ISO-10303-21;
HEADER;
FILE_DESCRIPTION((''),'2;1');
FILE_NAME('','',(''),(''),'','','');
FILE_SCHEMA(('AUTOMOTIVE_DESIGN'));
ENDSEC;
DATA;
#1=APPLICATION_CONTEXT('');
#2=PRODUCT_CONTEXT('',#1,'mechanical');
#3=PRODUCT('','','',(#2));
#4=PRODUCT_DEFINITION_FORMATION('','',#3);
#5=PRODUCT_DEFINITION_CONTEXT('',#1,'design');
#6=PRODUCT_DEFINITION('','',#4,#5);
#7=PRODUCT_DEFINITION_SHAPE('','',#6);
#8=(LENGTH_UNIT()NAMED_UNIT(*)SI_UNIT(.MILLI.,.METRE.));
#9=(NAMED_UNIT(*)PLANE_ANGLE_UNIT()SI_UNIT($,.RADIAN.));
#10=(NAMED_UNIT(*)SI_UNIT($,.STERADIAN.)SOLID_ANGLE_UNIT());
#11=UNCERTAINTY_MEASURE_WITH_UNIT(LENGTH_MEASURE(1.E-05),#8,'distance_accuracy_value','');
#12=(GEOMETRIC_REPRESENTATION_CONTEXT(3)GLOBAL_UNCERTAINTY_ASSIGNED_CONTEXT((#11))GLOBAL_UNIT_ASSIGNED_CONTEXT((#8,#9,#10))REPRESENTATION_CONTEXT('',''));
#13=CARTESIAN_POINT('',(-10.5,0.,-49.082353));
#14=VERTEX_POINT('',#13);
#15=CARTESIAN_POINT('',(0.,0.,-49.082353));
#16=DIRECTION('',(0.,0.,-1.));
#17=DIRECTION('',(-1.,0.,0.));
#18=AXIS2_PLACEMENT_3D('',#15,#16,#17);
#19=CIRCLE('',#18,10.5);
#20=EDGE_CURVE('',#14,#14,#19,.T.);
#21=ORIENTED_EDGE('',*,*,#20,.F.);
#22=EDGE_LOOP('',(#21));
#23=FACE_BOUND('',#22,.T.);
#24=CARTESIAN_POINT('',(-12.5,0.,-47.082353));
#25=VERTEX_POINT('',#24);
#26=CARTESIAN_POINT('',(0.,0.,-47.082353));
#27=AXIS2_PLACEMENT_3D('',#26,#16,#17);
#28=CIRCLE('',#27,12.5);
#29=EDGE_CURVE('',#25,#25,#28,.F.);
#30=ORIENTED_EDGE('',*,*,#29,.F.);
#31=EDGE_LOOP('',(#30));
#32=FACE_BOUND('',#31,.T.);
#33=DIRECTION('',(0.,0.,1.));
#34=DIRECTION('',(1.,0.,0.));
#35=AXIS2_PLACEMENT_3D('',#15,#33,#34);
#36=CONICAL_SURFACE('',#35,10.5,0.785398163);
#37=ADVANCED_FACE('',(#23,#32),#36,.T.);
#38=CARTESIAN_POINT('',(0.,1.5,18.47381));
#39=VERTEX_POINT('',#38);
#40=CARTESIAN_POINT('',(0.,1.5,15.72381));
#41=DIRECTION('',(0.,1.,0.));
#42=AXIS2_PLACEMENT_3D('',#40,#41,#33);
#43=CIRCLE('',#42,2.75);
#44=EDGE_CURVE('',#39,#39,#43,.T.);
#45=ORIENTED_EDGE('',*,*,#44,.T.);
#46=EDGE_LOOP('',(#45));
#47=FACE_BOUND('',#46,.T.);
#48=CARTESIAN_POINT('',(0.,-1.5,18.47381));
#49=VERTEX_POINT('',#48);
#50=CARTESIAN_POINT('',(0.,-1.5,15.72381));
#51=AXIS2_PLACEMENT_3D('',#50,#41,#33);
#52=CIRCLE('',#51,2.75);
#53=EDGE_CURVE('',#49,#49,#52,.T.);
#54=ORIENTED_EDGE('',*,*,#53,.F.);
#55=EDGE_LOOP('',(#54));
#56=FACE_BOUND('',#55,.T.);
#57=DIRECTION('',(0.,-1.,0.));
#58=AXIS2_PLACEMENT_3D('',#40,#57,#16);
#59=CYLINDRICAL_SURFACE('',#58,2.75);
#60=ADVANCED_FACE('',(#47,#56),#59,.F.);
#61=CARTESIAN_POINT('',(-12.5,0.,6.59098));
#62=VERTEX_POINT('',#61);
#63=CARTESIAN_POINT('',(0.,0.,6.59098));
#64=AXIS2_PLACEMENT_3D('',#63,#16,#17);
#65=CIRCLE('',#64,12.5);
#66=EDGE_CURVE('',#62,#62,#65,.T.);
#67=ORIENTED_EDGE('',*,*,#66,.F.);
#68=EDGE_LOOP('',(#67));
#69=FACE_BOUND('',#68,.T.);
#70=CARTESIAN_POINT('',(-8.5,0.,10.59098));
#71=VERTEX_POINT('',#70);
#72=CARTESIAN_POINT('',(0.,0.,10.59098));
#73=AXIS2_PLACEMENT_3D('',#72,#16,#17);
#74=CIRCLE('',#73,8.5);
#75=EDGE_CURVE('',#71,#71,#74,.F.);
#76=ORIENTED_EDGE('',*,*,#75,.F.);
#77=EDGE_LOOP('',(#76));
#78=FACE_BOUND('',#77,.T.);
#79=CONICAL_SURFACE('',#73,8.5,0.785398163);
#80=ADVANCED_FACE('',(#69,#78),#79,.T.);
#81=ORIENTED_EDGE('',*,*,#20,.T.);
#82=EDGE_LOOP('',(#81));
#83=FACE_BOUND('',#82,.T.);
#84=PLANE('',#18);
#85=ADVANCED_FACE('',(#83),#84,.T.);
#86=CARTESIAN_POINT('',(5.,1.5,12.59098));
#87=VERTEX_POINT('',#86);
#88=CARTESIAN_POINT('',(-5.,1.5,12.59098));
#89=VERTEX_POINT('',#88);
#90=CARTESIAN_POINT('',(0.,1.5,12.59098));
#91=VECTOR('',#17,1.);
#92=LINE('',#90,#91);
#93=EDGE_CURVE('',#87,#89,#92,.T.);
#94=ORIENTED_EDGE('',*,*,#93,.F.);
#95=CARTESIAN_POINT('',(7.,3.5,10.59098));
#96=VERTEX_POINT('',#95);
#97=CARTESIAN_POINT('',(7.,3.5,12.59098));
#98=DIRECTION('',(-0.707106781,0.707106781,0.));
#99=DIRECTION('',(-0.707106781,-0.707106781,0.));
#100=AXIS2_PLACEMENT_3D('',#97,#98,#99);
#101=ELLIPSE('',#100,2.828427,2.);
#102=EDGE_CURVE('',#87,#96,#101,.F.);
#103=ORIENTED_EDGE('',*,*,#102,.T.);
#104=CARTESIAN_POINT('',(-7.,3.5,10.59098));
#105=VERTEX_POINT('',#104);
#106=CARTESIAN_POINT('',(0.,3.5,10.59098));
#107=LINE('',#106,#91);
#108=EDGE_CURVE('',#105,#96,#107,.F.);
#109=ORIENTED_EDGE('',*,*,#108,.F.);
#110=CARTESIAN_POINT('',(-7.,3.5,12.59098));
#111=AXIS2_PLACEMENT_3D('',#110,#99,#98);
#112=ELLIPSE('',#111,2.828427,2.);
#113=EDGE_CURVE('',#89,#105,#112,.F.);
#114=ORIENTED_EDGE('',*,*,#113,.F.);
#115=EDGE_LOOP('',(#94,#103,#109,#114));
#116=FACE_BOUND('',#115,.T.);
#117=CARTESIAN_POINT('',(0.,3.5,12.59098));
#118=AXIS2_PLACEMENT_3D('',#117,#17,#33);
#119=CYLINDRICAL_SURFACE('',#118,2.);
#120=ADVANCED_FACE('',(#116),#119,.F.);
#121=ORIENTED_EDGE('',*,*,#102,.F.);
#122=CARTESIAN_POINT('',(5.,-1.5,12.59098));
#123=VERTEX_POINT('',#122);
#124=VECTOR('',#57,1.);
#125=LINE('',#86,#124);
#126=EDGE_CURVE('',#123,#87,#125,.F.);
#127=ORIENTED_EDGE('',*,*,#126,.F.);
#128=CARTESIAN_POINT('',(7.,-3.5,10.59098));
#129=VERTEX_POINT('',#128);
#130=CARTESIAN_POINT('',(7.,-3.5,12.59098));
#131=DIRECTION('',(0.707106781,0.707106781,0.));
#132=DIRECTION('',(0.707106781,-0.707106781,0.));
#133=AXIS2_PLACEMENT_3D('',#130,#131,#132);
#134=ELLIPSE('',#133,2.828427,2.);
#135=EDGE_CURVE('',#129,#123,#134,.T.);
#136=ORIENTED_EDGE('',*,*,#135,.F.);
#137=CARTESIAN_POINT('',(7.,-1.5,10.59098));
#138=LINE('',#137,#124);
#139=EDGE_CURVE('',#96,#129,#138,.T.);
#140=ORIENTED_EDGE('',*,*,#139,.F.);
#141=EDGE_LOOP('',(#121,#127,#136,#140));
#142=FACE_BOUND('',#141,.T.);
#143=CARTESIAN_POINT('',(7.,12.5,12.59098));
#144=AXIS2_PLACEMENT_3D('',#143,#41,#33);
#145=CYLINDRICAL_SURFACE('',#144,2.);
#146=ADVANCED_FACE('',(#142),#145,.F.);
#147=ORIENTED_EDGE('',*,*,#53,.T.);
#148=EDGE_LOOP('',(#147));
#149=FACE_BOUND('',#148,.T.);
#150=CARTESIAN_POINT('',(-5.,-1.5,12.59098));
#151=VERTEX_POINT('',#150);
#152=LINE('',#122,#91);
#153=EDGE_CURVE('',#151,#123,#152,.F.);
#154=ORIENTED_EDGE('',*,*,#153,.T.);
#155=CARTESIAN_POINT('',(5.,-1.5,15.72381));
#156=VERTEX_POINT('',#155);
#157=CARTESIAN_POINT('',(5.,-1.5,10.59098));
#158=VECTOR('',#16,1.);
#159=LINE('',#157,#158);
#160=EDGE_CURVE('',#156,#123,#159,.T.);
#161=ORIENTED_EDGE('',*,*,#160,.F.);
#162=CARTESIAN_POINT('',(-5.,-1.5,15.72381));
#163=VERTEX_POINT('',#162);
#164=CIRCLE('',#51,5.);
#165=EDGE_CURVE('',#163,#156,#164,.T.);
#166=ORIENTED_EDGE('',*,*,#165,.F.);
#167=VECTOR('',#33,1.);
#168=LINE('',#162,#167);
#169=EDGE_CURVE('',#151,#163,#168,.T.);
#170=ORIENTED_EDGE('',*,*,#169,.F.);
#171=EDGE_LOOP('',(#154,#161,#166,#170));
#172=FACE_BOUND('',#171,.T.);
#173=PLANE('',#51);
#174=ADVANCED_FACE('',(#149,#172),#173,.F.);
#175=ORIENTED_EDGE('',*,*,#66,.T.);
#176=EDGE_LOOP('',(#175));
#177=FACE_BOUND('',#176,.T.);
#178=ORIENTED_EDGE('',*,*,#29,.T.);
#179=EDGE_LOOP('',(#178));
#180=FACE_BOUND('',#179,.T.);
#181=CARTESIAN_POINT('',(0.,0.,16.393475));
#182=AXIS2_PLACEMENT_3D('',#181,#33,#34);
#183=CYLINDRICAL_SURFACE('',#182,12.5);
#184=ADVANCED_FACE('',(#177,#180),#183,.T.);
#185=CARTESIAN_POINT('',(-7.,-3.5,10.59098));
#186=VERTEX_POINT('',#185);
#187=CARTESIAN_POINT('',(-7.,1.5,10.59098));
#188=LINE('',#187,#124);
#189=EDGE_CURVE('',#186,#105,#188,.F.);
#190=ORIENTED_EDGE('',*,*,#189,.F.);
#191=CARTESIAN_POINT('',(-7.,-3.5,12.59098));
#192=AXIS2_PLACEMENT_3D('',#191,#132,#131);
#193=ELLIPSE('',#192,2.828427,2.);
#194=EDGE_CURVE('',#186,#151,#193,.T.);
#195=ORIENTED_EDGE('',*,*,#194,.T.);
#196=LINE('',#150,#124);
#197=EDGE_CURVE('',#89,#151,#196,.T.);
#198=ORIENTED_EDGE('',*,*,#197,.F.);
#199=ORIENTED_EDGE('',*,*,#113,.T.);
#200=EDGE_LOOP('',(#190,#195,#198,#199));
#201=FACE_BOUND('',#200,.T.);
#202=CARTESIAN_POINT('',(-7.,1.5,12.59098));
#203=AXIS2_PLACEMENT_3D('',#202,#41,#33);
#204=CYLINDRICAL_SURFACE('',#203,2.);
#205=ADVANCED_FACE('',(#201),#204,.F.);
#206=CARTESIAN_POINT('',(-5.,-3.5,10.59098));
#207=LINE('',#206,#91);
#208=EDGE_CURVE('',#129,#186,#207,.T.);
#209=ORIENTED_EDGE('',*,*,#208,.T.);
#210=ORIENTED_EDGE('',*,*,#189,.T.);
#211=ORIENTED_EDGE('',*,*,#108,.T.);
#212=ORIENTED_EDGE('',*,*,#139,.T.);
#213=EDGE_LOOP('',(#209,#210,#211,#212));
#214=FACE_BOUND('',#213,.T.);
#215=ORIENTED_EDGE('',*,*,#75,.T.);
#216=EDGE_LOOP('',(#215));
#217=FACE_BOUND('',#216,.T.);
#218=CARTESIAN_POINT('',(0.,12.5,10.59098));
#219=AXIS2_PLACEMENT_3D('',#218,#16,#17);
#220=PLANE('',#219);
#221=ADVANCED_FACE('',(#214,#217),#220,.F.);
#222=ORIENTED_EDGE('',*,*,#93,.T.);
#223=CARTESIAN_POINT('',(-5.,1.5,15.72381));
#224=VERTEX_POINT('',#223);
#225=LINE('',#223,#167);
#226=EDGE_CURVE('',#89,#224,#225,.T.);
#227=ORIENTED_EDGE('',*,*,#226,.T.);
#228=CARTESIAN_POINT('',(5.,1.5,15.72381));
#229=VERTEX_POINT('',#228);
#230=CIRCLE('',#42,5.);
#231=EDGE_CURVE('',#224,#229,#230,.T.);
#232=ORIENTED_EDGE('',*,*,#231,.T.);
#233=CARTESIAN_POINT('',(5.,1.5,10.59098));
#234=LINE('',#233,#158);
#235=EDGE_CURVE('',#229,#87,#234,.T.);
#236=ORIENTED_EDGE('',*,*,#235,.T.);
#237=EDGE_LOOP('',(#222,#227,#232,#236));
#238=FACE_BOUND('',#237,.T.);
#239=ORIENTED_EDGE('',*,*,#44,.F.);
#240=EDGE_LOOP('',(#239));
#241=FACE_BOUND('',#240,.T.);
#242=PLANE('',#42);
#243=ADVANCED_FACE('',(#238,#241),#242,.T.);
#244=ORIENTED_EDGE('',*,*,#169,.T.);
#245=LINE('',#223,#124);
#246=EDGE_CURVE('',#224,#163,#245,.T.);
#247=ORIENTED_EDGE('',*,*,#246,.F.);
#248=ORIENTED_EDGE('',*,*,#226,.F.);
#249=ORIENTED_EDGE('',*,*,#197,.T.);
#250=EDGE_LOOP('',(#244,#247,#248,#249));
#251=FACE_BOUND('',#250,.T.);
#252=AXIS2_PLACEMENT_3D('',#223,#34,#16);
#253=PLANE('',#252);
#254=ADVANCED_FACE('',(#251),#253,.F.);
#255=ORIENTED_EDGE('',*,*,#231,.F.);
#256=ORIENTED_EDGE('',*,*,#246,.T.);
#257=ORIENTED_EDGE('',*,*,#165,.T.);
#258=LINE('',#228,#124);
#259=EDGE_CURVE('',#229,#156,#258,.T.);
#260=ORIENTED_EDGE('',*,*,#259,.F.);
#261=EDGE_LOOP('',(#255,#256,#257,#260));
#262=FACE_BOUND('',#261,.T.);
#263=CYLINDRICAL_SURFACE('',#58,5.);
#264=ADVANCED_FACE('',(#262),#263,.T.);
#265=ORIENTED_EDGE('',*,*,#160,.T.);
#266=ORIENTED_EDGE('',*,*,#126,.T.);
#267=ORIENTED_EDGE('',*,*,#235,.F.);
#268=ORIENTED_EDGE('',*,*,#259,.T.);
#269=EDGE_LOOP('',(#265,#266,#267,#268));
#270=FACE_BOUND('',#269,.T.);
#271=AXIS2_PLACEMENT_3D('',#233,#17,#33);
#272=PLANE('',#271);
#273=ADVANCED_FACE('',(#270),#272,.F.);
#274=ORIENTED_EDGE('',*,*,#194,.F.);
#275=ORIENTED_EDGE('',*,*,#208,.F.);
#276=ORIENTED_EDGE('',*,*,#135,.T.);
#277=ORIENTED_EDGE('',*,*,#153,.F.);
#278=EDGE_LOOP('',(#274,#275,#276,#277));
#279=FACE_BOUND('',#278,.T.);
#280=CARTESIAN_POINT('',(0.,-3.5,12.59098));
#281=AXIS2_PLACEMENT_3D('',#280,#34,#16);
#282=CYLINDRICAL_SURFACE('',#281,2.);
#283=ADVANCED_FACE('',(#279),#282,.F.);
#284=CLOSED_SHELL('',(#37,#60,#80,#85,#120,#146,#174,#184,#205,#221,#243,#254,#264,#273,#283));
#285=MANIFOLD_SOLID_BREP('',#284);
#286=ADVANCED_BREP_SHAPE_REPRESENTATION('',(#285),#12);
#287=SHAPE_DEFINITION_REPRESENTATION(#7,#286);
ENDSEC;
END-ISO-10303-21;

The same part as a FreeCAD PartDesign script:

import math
import FreeCAD as App
import Part
import Sketcher
from FreeCAD import Vector


def edges_at(feature, points):
    """Names of the edges that pass closest to the given points."""
    edges = feature.Shape.Edges
    near = lambda p: min(range(len(edges)), key=lambda i: edges[i].distToShape(Part.Vertex(*p))[0])
    return sorted({f"Edge{near(p) + 1}" for p in points})


def add_polygon(sketch, points):
    """Adds a closed chain of lines whose ends are joined by coincident constraints."""
    first, n = sketch.GeometryCount, len(points)
    for a, b in zip(points, points[1:] + points[:1]):
        sketch.addGeometry(Part.LineSegment(App.Vector(*a, 0), App.Vector(*b, 0)), False)
    for i in range(n):
        sketch.addConstraint(Sketcher.Constraint("Coincident", first + i, 2, first + (i + 1) % n, 1))

doc = App.newDocument("Part")
body = doc.addObject("PartDesign::Body", "Body")

sketch1 = doc.addObject("Sketcher::SketchObject", "Sketch")
body.addObject(sketch1)
sketch1.AttachmentSupport = (doc.YZ_Plane, [""])
sketch1.MapMode = "FlatFace"
add_polygon(sketch1, [(12.5, -4.082353), (12.5, 10.59098), (0, 10.59098), (0, -4.082353)])
sketch1.addConstraint([
    Sketcher.Constraint("Vertical", 0),
    Sketcher.Constraint("Horizontal", 1),
    Sketcher.Constraint("Vertical", 2),
    Sketcher.Constraint("Horizontal", 3),
    Sketcher.Constraint("PointOnObject", 1, 2, -2),
    Sketcher.Constraint("DistanceX", 1, 2, 1, 1, 12.5),
    Sketcher.Constraint("DistanceY", 0, 1, 0, 2, 14.673332),
    Sketcher.Constraint("DistanceY", -1, 1, 0, 2, 10.59098),
])
revolution = doc.addObject("PartDesign::Revolution", "Revolution")
body.addObject(revolution)
revolution.Profile = sketch1
revolution.ReferenceAxis = (sketch1, ["V_Axis"])
revolution.Angle = 360

sketch2 = doc.addObject("Sketcher::SketchObject", "Sketch001")
body.addObject(sketch2)
sketch2.AttachmentSupport = (doc.XZ_Plane, [""])
sketch2.MapMode = "FlatFace"
sketch2.addGeometry([
    Part.LineSegment(Vector(-5, 10.59098, 0), Vector(-5, 15.72381, 0)),
    Part.ArcOfCircle(Part.Circle(Vector(0, 15.72381, 0), Vector(0, 0, 1), 5), math.radians(0), math.radians(180)),
    Part.LineSegment(Vector(5, 15.72381, 0), Vector(5, 10.59098, 0)),
    Part.LineSegment(Vector(5, 10.59098, 0), Vector(-5, 10.59098, 0)),
    Part.Circle(Vector(0, 15.72381, 0), Vector(0, 0, 1), 2.75),
], False)
sketch2.addConstraint([
    Sketcher.Constraint("Tangent", 0, 2, 1, 2),
    Sketcher.Constraint("Tangent", 1, 1, 2, 1),
    Sketcher.Constraint("Coincident", 2, 2, 3, 1),
    Sketcher.Constraint("Coincident", 3, 2, 0, 1),
    Sketcher.Constraint("Vertical", 0),
    Sketcher.Constraint("Vertical", 2),
    Sketcher.Constraint("Horizontal", 3),
    Sketcher.Constraint("Coincident", 4, 3, 1, 3),
    Sketcher.Constraint("PointOnObject", 1, 3, -2),
    Sketcher.Constraint("Radius", 1, 5.0),
    Sketcher.Constraint("Diameter", 4, 5.5),
    Sketcher.Constraint("DistanceY", 0, 1, 0, 2, 5.13283),
    Sketcher.Constraint("DistanceY", -1, 1, 1, 3, 15.72381),
])
pad1 = doc.addObject("PartDesign::Pad", "Pad")
body.addObject(pad1)
pad1.Profile = sketch2
pad1.Length = 3
pad1.Midplane = True

sketch3 = doc.addObject("Sketcher::SketchObject", "Sketch002")
body.addObject(sketch3)
sketch3.AttachmentSupport = (doc.XY_Plane, [""])
sketch3.MapMode = "FlatFace"
sketch3.AttachmentOffset = App.Placement(Vector(0, 0, -49.082353), App.Rotation())
sketch3.addGeometry(Part.Circle(Vector(0, 0, 0), Vector(0, 0, 1), 12.5), False)
sketch3.addConstraint([
    Sketcher.Constraint("Coincident", 0, 3, -1, 1),
    Sketcher.Constraint("Diameter", 0, 25.0),
])
pad2 = doc.addObject("PartDesign::Pad", "Pad001")
body.addObject(pad2)
pad2.Profile = sketch3
pad2.Length = 45
doc.recompute()

chamfer = doc.addObject("PartDesign::Chamfer", "Chamfer")
body.addObject(chamfer)
chamfer.Base = (pad2, edges_at(pad2, [(-12.5, 0, 10.591)]))
chamfer.Size = 4
doc.recompute()

fillet = doc.addObject("PartDesign::Fillet", "Fillet")
body.addObject(fillet)
fillet.Base = (chamfer, edges_at(chamfer, [
    (0, 1.5, 10.591),
    (0, -1.5, 10.591),
    (5, 0, 10.591),
    (-5, 0, 10.591),
]))
fillet.Radius = 2
doc.recompute()

chamfer2 = doc.addObject("PartDesign::Chamfer", "Chamfer001")
body.addObject(chamfer2)
chamfer2.Base = (fillet, edges_at(fillet, [(-12.5, 0, -49.082)]))
chamfer2.Size = 2

doc.recompute()
